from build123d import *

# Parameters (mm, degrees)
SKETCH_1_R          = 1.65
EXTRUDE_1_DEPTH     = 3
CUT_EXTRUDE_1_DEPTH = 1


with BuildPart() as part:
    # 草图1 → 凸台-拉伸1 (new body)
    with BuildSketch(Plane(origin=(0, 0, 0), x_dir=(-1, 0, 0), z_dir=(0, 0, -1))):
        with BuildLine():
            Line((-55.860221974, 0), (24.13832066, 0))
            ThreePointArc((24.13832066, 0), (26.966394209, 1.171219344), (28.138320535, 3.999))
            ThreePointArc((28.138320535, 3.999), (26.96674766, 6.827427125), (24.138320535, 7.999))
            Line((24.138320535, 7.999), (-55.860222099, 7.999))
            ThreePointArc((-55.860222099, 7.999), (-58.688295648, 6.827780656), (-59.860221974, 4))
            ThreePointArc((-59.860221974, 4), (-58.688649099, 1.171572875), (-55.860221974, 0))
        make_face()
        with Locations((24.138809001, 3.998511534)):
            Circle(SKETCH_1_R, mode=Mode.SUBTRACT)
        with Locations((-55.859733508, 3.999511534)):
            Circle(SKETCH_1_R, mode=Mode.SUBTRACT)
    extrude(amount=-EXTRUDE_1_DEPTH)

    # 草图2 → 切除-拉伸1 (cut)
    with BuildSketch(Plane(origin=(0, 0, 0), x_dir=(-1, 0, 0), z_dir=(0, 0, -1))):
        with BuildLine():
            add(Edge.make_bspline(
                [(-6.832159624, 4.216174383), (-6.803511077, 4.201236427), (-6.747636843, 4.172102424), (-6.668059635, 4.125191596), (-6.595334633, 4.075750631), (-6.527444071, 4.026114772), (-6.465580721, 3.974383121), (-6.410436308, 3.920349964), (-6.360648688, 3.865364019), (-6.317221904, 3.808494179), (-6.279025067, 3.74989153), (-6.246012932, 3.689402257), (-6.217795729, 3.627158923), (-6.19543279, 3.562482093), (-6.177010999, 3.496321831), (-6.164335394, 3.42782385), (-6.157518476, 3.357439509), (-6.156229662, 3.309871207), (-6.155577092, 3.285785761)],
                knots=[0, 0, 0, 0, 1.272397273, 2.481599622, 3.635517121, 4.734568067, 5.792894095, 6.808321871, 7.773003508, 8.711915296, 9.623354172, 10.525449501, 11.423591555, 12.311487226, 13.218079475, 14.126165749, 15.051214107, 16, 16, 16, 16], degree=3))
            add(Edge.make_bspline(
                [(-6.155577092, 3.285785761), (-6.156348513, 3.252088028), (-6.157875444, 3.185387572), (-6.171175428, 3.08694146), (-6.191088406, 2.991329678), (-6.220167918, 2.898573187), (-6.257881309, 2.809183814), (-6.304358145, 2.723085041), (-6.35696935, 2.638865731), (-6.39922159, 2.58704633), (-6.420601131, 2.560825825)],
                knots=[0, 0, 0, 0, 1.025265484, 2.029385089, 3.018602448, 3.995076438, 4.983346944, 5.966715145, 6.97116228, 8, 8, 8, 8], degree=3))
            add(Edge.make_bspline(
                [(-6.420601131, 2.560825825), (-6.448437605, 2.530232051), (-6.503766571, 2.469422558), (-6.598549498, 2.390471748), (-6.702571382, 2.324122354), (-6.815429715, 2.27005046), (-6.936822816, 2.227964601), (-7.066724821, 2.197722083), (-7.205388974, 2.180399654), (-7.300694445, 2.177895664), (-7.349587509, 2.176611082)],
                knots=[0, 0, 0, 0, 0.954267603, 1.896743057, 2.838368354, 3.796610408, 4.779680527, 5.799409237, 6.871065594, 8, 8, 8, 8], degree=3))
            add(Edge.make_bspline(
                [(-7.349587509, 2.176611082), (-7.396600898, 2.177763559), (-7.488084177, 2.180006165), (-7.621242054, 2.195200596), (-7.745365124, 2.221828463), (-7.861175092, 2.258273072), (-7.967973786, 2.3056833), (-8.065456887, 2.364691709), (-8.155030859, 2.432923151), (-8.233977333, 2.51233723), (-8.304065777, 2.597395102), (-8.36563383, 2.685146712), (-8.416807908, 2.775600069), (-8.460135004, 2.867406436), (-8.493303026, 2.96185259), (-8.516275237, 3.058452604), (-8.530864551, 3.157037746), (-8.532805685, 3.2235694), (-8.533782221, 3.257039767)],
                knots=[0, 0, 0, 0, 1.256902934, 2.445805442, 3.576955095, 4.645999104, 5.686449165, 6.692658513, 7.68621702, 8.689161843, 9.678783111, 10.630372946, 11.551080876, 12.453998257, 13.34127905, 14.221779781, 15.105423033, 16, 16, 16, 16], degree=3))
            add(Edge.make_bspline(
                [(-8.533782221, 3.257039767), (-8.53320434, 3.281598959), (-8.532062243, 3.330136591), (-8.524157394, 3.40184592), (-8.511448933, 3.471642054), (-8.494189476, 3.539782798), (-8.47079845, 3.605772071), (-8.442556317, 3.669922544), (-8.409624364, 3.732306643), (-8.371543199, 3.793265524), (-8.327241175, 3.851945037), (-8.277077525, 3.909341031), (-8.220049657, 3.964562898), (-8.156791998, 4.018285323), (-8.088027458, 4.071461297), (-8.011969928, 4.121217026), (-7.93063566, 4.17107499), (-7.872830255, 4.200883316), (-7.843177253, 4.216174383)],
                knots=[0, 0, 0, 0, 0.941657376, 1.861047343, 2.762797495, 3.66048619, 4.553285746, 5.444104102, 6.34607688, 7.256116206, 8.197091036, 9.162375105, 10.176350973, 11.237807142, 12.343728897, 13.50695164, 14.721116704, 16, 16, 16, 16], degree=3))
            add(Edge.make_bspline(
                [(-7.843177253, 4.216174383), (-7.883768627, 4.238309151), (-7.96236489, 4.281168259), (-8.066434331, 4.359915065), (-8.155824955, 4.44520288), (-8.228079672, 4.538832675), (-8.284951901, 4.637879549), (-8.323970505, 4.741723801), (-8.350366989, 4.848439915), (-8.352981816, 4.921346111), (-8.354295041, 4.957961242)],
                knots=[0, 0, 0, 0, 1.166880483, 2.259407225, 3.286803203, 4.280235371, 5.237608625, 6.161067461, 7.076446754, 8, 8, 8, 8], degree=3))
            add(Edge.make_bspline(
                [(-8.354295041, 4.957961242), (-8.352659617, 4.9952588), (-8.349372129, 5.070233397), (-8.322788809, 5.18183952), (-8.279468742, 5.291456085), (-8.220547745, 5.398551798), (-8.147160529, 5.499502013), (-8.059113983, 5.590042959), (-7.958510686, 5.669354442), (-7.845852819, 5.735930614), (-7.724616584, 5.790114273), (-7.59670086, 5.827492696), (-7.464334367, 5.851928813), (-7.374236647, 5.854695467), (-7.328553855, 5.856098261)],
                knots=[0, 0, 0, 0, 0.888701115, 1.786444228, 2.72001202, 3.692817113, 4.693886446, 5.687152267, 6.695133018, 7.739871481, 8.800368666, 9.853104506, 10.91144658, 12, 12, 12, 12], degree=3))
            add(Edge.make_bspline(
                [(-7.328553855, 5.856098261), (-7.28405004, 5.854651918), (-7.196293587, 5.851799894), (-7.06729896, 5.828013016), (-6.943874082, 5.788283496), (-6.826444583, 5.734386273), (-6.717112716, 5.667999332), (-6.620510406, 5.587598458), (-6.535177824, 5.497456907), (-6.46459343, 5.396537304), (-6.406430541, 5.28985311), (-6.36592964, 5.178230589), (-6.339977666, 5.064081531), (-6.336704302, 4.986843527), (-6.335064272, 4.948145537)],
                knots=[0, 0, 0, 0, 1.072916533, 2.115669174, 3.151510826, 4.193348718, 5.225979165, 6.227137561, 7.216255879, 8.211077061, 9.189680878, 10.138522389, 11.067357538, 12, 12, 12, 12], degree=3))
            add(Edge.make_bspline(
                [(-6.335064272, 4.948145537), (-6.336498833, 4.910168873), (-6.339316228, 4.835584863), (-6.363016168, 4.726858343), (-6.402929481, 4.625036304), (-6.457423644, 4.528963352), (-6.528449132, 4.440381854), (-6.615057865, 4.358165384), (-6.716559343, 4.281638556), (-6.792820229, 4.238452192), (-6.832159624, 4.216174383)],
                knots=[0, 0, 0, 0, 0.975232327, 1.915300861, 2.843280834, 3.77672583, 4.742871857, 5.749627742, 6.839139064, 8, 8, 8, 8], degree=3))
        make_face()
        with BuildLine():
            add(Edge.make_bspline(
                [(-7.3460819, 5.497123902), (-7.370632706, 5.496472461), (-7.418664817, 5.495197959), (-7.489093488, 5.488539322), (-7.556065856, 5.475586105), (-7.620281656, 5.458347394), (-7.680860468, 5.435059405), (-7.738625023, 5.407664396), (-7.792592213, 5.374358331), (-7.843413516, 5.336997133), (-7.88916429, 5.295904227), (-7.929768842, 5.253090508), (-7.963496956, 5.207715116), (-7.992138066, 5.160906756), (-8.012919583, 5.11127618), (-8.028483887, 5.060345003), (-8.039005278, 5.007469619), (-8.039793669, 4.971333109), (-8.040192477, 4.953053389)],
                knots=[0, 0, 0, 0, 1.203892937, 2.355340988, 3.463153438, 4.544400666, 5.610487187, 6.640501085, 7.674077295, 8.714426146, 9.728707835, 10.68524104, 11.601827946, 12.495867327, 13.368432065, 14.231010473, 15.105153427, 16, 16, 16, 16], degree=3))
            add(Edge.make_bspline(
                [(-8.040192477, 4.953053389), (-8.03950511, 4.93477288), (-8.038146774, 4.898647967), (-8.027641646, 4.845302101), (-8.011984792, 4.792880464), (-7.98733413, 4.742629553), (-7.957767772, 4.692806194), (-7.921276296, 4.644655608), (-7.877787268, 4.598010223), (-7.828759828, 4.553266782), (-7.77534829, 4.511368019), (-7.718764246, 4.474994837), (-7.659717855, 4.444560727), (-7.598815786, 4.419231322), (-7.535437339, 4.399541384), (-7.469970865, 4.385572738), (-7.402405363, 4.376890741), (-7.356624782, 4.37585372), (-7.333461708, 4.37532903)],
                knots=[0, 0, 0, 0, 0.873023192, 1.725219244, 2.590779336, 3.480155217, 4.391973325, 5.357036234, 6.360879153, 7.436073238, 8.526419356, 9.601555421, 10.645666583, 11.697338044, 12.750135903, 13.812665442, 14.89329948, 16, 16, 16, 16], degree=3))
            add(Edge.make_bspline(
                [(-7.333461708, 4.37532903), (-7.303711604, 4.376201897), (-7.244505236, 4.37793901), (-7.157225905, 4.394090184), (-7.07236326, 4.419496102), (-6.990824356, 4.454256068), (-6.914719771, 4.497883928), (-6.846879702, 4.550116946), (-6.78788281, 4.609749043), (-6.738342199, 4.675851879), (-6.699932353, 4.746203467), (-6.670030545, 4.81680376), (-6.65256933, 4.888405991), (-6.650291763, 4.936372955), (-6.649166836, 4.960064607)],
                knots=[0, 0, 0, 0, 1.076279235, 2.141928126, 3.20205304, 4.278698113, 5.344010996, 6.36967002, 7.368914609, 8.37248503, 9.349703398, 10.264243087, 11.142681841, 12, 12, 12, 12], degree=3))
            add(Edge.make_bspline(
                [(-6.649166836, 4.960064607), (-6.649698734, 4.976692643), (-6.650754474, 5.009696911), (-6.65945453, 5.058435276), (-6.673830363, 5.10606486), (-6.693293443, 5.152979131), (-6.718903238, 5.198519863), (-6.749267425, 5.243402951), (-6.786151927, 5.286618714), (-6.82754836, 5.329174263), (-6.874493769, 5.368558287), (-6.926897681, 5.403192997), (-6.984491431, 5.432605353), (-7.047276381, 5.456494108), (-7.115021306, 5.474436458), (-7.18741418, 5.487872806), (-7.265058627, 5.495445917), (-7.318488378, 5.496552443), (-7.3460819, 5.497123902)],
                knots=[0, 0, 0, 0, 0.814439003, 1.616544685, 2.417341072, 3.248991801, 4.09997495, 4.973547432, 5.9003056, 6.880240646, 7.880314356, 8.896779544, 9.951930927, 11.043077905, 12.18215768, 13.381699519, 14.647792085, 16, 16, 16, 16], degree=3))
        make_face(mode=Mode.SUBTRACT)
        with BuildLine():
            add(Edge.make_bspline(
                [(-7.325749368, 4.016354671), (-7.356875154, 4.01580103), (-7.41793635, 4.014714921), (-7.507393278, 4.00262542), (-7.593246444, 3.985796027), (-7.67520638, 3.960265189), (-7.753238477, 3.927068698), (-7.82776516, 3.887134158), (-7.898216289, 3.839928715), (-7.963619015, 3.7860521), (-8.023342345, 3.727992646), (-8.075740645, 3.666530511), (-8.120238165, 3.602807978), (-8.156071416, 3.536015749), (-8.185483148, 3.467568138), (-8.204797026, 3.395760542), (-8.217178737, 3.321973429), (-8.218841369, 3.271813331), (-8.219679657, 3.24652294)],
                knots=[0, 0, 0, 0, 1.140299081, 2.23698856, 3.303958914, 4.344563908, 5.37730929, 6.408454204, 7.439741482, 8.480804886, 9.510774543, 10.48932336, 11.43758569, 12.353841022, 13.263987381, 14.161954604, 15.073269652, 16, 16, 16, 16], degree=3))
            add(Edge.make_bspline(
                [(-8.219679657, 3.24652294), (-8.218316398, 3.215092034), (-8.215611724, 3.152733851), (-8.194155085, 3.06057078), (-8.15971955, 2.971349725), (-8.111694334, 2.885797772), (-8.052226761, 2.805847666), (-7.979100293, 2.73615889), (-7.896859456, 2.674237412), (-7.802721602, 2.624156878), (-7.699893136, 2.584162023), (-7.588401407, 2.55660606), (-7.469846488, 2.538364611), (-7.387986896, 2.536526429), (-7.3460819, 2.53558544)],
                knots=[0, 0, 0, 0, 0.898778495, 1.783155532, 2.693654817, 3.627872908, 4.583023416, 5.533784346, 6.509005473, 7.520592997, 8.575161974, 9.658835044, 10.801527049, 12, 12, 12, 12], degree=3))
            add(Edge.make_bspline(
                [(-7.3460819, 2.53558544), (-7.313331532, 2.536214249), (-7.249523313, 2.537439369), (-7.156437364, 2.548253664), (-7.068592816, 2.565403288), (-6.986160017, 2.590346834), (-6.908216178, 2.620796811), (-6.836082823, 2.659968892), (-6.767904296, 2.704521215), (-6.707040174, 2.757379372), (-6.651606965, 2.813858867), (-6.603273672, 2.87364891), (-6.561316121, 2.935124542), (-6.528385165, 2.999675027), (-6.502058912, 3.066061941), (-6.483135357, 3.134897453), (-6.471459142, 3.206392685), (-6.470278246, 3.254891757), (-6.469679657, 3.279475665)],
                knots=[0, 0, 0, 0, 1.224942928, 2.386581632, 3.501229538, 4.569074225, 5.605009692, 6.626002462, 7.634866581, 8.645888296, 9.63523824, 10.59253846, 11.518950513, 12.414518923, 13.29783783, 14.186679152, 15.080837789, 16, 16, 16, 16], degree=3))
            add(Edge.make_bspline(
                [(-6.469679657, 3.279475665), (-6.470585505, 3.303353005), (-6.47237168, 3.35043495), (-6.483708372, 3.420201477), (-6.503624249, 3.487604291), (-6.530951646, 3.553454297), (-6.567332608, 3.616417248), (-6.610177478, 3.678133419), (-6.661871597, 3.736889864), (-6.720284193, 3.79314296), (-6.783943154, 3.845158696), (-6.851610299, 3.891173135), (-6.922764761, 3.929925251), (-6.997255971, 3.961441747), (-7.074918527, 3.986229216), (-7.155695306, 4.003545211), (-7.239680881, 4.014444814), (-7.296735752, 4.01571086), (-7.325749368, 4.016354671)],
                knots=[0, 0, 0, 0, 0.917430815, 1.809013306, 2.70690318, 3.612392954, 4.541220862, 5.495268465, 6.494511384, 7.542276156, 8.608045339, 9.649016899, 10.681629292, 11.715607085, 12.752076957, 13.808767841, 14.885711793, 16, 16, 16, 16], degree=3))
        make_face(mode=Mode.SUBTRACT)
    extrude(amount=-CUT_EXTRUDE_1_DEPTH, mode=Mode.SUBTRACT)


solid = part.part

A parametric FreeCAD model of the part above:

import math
import FreeCAD as App
import Part
import Sketcher
from FreeCAD import Vector

doc = App.newDocument("Part")
body = doc.addObject("PartDesign::Body", "Body")

sketch1 = doc.addObject("Sketcher::SketchObject", "Sketch")
body.addObject(sketch1)
sketch1.AttachmentSupport = (doc.XY_Plane, [""])
sketch1.MapMode = "FlatFace"
sketch1.addGeometry([
    Part.LineSegment(Vector(55.860222, 0, 0), Vector(-24.138321, 0, 0)),
    Part.ArcOfCircle(Part.Circle(Vector(-24.138321, 4, 0), Vector(0, 0, 1), 4), math.radians(-179.985676), math.radians(-90)),
    Part.ArcOfCircle(Part.Circle(Vector(-24.138321, 3.999, 0), Vector(0, 0, 1), 4), math.radians(90), math.radians(180)),
    Part.LineSegment(Vector(-24.138321, 7.999, 0), Vector(55.860222, 7.999, 0)),
    Part.ArcOfCircle(Part.Circle(Vector(55.860222, 3.999, 0), Vector(0, 0, 1), 4), math.radians(0.014324), math.radians(90)),
    Part.ArcOfCircle(Part.Circle(Vector(55.860222, 4, 0), Vector(0, 0, 1), 4), math.radians(-90), math.radians(0)),
    Part.Circle(Vector(-24.138809, 3.998512, 0), Vector(0, 0, 1), 1.65),
    Part.Circle(Vector(55.859734, 3.999512, 0), Vector(0, 0, 1), 1.65),
], False)
sketch1.addConstraint([
    Sketcher.Constraint("Tangent", 0, 2, 1, 2),
    Sketcher.Constraint("Coincident", 1, 1, 2, 2),
    Sketcher.Constraint("Tangent", 2, 1, 3, 1),
    Sketcher.Constraint("Tangent", 3, 2, 4, 2),
    Sketcher.Constraint("Coincident", 4, 1, 5, 2),
    Sketcher.Constraint("Tangent", 5, 1, 0, 1),
    Sketcher.Constraint("Horizontal", 0),
    Sketcher.Constraint("Horizontal", 3),
    Sketcher.Constraint("Equal", 1, 2),
    Sketcher.Constraint("Equal", 2, 4),
    Sketcher.Constraint("Equal", 4, 5),
    Sketcher.Constraint("Equal", 6, 7),
    Sketcher.Constraint("PointOnObject", 0, 2, -1),
    Sketcher.Constraint("Horizontal", 4, 3, 1, 1),
    Sketcher.Constraint("Horizontal", 5, 3, 4, 1),
    Sketcher.Constraint("Radius", 1, 4.0),
    Sketcher.Constraint("Diameter", 6, 3.3),
    Sketcher.Constraint("DistanceY", -1, 1, 2, 3, 3.999),
    Sketcher.Constraint("DistanceY", 6, 3, 7, 3, 0.001),
    Sketcher.Constraint("DistanceX", 0, 2, 0, 1, 79.998543),
    Sketcher.Constraint("DistanceX", 1, 3, -1, 1, 24.138321),
    Sketcher.Constraint("DistanceX", 6, 3, -1, 1, 24.138809),
    Sketcher.Constraint("DistanceY", -1, 1, 6, 3, 3.998512),
    Sketcher.Constraint("DistanceX", 7, 3, 5, 3, 0.000488),
])
pad1 = doc.addObject("PartDesign::Pad", "Pad")
body.addObject(pad1)
pad1.Profile = sketch1
pad1.Length = 3

sketch2 = doc.addObject("Sketcher::SketchObject", "Sketch001")
body.addObject(sketch2)
sketch2.AttachmentSupport = (doc.XY_Plane, [""])
sketch2.MapMode = "FlatFace"
sketch2.addGeometry([
    Part.BSplineCurve([Vector(6.83216, 4.216174, 0), Vector(6.803511, 4.201236, 0), Vector(6.747637, 4.172102, 0), Vector(6.66806, 4.125192, 0), Vector(6.595335, 4.075751, 0), Vector(6.527444, 4.026115, 0), Vector(6.465581, 3.974383, 0), Vector(6.410436, 3.92035, 0), Vector(6.360649, 3.865364, 0), Vector(6.317222, 3.808494, 0), Vector(6.279025, 3.749892, 0), Vector(6.246013, 3.689402, 0), Vector(6.217796, 3.627159, 0), Vector(6.195433, 3.562482, 0), Vector(6.177011, 3.496322, 0), Vector(6.164335, 3.427824, 0), Vector(6.157518, 3.35744, 0), Vector(6.15623, 3.309871, 0), Vector(6.155577, 3.285786, 0)], [4, 1, 1, 1, 1, 1, 1, 1, 1, 1, 1, 1, 1, 1, 1, 1, 4], [0, 1.272397273, 2.481599622, 3.635517121, 4.734568067, 5.792894095, 6.808321871, 7.773003508, 8.711915296, 9.623354172, 10.525449501, 11.423591555, 12.311487226, 13.218079475, 14.126165749, 15.051214107, 16], False, 3, [1, 1, 1, 1, 1, 1, 1, 1, 1, 1, 1, 1, 1, 1, 1, 1, 1, 1, 1], False),
    Part.BSplineCurve([Vector(6.335064, 4.948146, 0), Vector(6.336499, 4.910169, 0), Vector(6.339316, 4.835585, 0), Vector(6.363016, 4.726858, 0), Vector(6.402929, 4.625036, 0), Vector(6.457424, 4.528963, 0), Vector(6.528449, 4.440382, 0), Vector(6.615058, 4.358165, 0), Vector(6.716559, 4.281639, 0), Vector(6.79282, 4.238452, 0), Vector(6.83216, 4.216174, 0)], [4, 1, 1, 1, 1, 1, 1, 1, 4], [0, 0.975232327, 1.915300861, 2.843280834, 3.77672583, 4.742871857, 5.749627742, 6.839139064, 8], False, 3, [1, 1, 1, 1, 1, 1, 1, 1, 1, 1, 1], False),
    Part.BSplineCurve([Vector(7.328554, 5.856098, 0), Vector(7.28405, 5.854652, 0), Vector(7.196294, 5.8518, 0), Vector(7.067299, 5.828013, 0), Vector(6.943874, 5.788283, 0), Vector(6.826445, 5.734386, 0), Vector(6.717113, 5.667999, 0), Vector(6.62051, 5.587598, 0), Vector(6.535178, 5.497457, 0), Vector(6.464593, 5.396537, 0), Vector(6.406431, 5.289853, 0), Vector(6.36593, 5.178231, 0), Vector(6.339978, 5.064082, 0), Vector(6.336704, 4.986844, 0), Vector(6.335064, 4.948146, 0)], [4, 1, 1, 1, 1, 1, 1, 1, 1, 1, 1, 1, 4], [0, 1.072916533, 2.115669174, 3.151510826, 4.193348718, 5.225979165, 6.227137561, 7.216255879, 8.211077061, 9.189680878, 10.138522389, 11.067357538, 12], False, 3, [1, 1, 1, 1, 1, 1, 1, 1, 1, 1, 1, 1, 1, 1, 1], False),
    Part.BSplineCurve([Vector(8.354295, 4.957961, 0), Vector(8.35266, 4.995259, 0), Vector(8.349372, 5.070233, 0), Vector(8.322789, 5.18184, 0), Vector(8.279469, 5.291456, 0), Vector(8.220548, 5.398552, 0), Vector(8.147161, 5.499502, 0), Vector(8.059114, 5.590043, 0), Vector(7.958511, 5.669354, 0), Vector(7.845853, 5.735931, 0), Vector(7.724617, 5.790114, 0), Vector(7.596701, 5.827493, 0), Vector(7.464334, 5.851929, 0), Vector(7.374237, 5.854695, 0), Vector(7.328554, 5.856098, 0)], [4, 1, 1, 1, 1, 1, 1, 1, 1, 1, 1, 1, 4], [0, 0.888701115, 1.786444228, 2.72001202, 3.692817113, 4.693886446, 5.687152267, 6.695133018, 7.739871481, 8.800368666, 9.853104506, 10.91144658, 12], False, 3, [1, 1, 1, 1, 1, 1, 1, 1, 1, 1, 1, 1, 1, 1, 1], False),
    Part.BSplineCurve([Vector(7.843177, 4.216174, 0), Vector(7.883769, 4.238309, 0), Vector(7.962365, 4.281168, 0), Vector(8.066434, 4.359915, 0), Vector(8.155825, 4.445203, 0), Vector(8.22808, 4.538833, 0), Vector(8.284952, 4.63788, 0), Vector(8.323971, 4.741724, 0), Vector(8.350367, 4.84844, 0), Vector(8.352982, 4.921346, 0), Vector(8.354295, 4.957961, 0)], [4, 1, 1, 1, 1, 1, 1, 1, 4], [0, 1.166880483, 2.259407225, 3.286803203, 4.280235371, 5.237608625, 6.161067461, 7.076446754, 8], False, 3, [1, 1, 1, 1, 1, 1, 1, 1, 1, 1, 1], False),
    Part.BSplineCurve([Vector(8.533782, 3.25704, 0), Vector(8.533204, 3.281599, 0), Vector(8.532062, 3.330137, 0), Vector(8.524157, 3.401846, 0), Vector(8.511449, 3.471642, 0), Vector(8.494189, 3.539783, 0), Vector(8.470798, 3.605772, 0), Vector(8.442556, 3.669923, 0), Vector(8.409624, 3.732307, 0), Vector(8.371543, 3.793266, 0), Vector(8.327241, 3.851945, 0), Vector(8.277078, 3.909341, 0), Vector(8.22005, 3.964563, 0), Vector(8.156792, 4.018285, 0), Vector(8.088027, 4.071461, 0), Vector(8.01197, 4.121217, 0), Vector(7.930636, 4.171075, 0), Vector(7.87283, 4.200883, 0), Vector(7.843177, 4.216174, 0)], [4, 1, 1, 1, 1, 1, 1, 1, 1, 1, 1, 1, 1, 1, 1, 1, 4], [0, 0.941657376, 1.861047343, 2.762797495, 3.66048619, 4.553285746, 5.444104102, 6.34607688, 7.256116206, 8.197091036, 9.162375105, 10.176350973, 11.237807142, 12.343728897, 13.50695164, 14.721116704, 16], False, 3, [1, 1, 1, 1, 1, 1, 1, 1, 1, 1, 1, 1, 1, 1, 1, 1, 1, 1, 1], False),
    Part.BSplineCurve([Vector(7.349588, 2.176611, 0), Vector(7.396601, 2.177764, 0), Vector(7.488084, 2.180006, 0), Vector(7.621242, 2.195201, 0), Vector(7.745365, 2.221828, 0), Vector(7.861175, 2.258273, 0), Vector(7.967974, 2.305683, 0), Vector(8.065457, 2.364692, 0), Vector(8.155031, 2.432923, 0), Vector(8.233977, 2.512337, 0), Vector(8.304066, 2.597395, 0), Vector(8.365634, 2.685147, 0), Vector(8.416808, 2.7756, 0), Vector(8.460135, 2.867406, 0), Vector(8.493303, 2.961853, 0), Vector(8.516275, 3.058453, 0), Vector(8.530865, 3.157038, 0), Vector(8.532806, 3.223569, 0), Vector(8.533782, 3.25704, 0)], [4, 1, 1, 1, 1, 1, 1, 1, 1, 1, 1, 1, 1, 1, 1, 1, 4], [0, 1.256902934, 2.445805442, 3.576955095, 4.645999104, 5.686449165, 6.692658513, 7.68621702, 8.689161843, 9.678783111, 10.630372946, 11.551080876, 12.453998257, 13.34127905, 14.221779781, 15.105423033, 16], False, 3, [1, 1, 1, 1, 1, 1, 1, 1, 1, 1, 1, 1, 1, 1, 1, 1, 1, 1, 1], False),
    Part.BSplineCurve([Vector(6.420601, 2.560826, 0), Vector(6.448438, 2.530232, 0), Vector(6.503767, 2.469423, 0), Vector(6.598549, 2.390472, 0), Vector(6.702571, 2.324122, 0), Vector(6.81543, 2.27005, 0), Vector(6.936823, 2.227965, 0), Vector(7.066725, 2.197722, 0), Vector(7.205389, 2.1804, 0), Vector(7.300694, 2.177896, 0), Vector(7.349588, 2.176611, 0)], [4, 1, 1, 1, 1, 1, 1, 1, 4], [0, 0.954267603, 1.896743057, 2.838368354, 3.796610408, 4.779680527, 5.799409237, 6.871065594, 8], False, 3, [1, 1, 1, 1, 1, 1, 1, 1, 1, 1, 1], False),
    Part.BSplineCurve([Vector(6.155577, 3.285786, 0), Vector(6.156349, 3.252088, 0), Vector(6.157875, 3.185388, 0), Vector(6.171175, 3.086941, 0), Vector(6.191088, 2.99133, 0), Vector(6.220168, 2.898573, 0), Vector(6.257881, 2.809184, 0), Vector(6.304358, 2.723085, 0), Vector(6.356969, 2.638866, 0), Vector(6.399222, 2.587046, 0), Vector(6.420601, 2.560826, 0)], [4, 1, 1, 1, 1, 1, 1, 1, 4], [0, 1.025265484, 2.029385089, 3.018602448, 3.995076438, 4.983346944, 5.966715145, 6.97116228, 8], False, 3, [1, 1, 1, 1, 1, 1, 1, 1, 1, 1, 1], False),
    Part.BSplineCurve([Vector(6.46968, 3.279476, 0), Vector(6.470586, 3.303353, 0), Vector(6.472372, 3.350435, 0), Vector(6.483708, 3.420201, 0), Vector(6.503624, 3.487604, 0), Vector(6.530952, 3.553454, 0), Vector(6.567333, 3.616417, 0), Vector(6.610177, 3.678133, 0), Vector(6.661872, 3.73689, 0), Vector(6.720284, 3.793143, 0), Vector(6.783943, 3.845159, 0), Vector(6.85161, 3.891173, 0), Vector(6.922765, 3.929925, 0), Vector(6.997256, 3.961442, 0), Vector(7.074919, 3.986229, 0), Vector(7.155695, 4.003545, 0), Vector(7.239681, 4.014445, 0), Vector(7.296736, 4.015711, 0), Vector(7.325749, 4.016355, 0)], [4, 1, 1, 1, 1, 1, 1, 1, 1, 1, 1, 1, 1, 1, 1, 1, 4], [0, 0.917430815, 1.809013306, 2.70690318, 3.612392954, 4.541220862, 5.495268465, 6.494511384, 7.542276156, 8.608045339, 9.649016899, 10.681629292, 11.715607085, 12.752076957, 13.808767841, 14.885711793, 16], False, 3, [1, 1, 1, 1, 1, 1, 1, 1, 1, 1, 1, 1, 1, 1, 1, 1, 1, 1, 1], False),
    Part.BSplineCurve([Vector(7.346082, 2.535585, 0), Vector(7.313332, 2.536214, 0), Vector(7.249523, 2.537439, 0), Vector(7.156437, 2.548254, 0), Vector(7.068593, 2.565403, 0), Vector(6.98616, 2.590347, 0), Vector(6.908216, 2.620797, 0), Vector(6.836083, 2.659969, 0), Vector(6.767904, 2.704521, 0), Vector(6.70704, 2.757379, 0), Vector(6.651607, 2.813859, 0), Vector(6.603274, 2.873649, 0), Vector(6.561316, 2.935125, 0), Vector(6.528385, 2.999675, 0), Vector(6.502059, 3.066062, 0), Vector(6.483135, 3.134897, 0), Vector(6.471459, 3.206393, 0), Vector(6.470278, 3.254892, 0), Vector(6.46968, 3.279476, 0)], [4, 1, 1, 1, 1, 1, 1, 1, 1, 1, 1, 1, 1, 1, 1, 1, 4], [0, 1.224942928, 2.386581632, 3.501229538, 4.569074225, 5.605009692, 6.626002462, 7.634866581, 8.645888296, 9.63523824, 10.59253846, 11.518950513, 12.414518923, 13.29783783, 14.186679152, 15.080837789, 16], False, 3, [1, 1, 1, 1, 1, 1, 1, 1, 1, 1, 1, 1, 1, 1, 1, 1, 1, 1, 1], False),
    Part.BSplineCurve([Vector(8.21968, 3.246523, 0), Vector(8.218316, 3.215092, 0), Vector(8.215612, 3.152734, 0), Vector(8.194155, 3.060571, 0), Vector(8.15972, 2.97135, 0), Vector(8.111694, 2.885798, 0), Vector(8.052227, 2.805848, 0), Vector(7.9791, 2.736159, 0), Vector(7.896859, 2.674237, 0), Vector(7.802722, 2.624157, 0), Vector(7.699893, 2.584162, 0), Vector(7.588401, 2.556606, 0), Vector(7.469846, 2.538365, 0), Vector(7.387987, 2.536526, 0), Vector(7.346082, 2.535585, 0)], [4, 1, 1, 1, 1, 1, 1, 1, 1, 1, 1, 1, 4], [0, 0.898778495, 1.783155532, 2.693654817, 3.627872908, 4.583023416, 5.533784346, 6.509005473, 7.520592997, 8.575161974, 9.658835044, 10.801527049, 12], False, 3, [1, 1, 1, 1, 1, 1, 1, 1, 1, 1, 1, 1, 1, 1, 1], False),
    Part.BSplineCurve([Vector(7.325749, 4.016355, 0), Vector(7.356875, 4.015801, 0), Vector(7.417936, 4.014715, 0), Vector(7.507393, 4.002625, 0), Vector(7.593246, 3.985796, 0), Vector(7.675206, 3.960265, 0), Vector(7.753238, 3.927069, 0), Vector(7.827765, 3.887134, 0), Vector(7.898216, 3.839929, 0), Vector(7.963619, 3.786052, 0), Vector(8.023342, 3.727993, 0), Vector(8.075741, 3.666531, 0), Vector(8.120238, 3.602808, 0), Vector(8.156071, 3.536016, 0), Vector(8.185483, 3.467568, 0), Vector(8.204797, 3.395761, 0), Vector(8.217179, 3.321973, 0), Vector(8.218841, 3.271813, 0), Vector(8.21968, 3.246523, 0)], [4, 1, 1, 1, 1, 1, 1, 1, 1, 1, 1, 1, 1, 1, 1, 1, 4], [0, 1.140299081, 2.23698856, 3.303958914, 4.344563908, 5.37730929, 6.408454204, 7.439741482, 8.480804886, 9.510774543, 10.48932336, 11.43758569, 12.353841022, 13.263987381, 14.161954604, 15.073269652, 16], False, 3, [1, 1, 1, 1, 1, 1, 1, 1, 1, 1, 1, 1, 1, 1, 1, 1, 1, 1, 1], False),
    Part.BSplineCurve([Vector(6.649167, 4.960065, 0), Vector(6.649699, 4.976693, 0), Vector(6.650754, 5.009697, 0), Vector(6.659455, 5.058435, 0), Vector(6.67383, 5.106065, 0), Vector(6.693293, 5.152979, 0), Vector(6.718903, 5.19852, 0), Vector(6.749267, 5.243403, 0), Vector(6.786152, 5.286619, 0), Vector(6.827548, 5.329174, 0), Vector(6.874494, 5.368558, 0), Vector(6.926898, 5.403193, 0), Vector(6.984491, 5.432605, 0), Vector(7.047276, 5.456494, 0), Vector(7.115021, 5.474436, 0), Vector(7.187414, 5.487873, 0), Vector(7.265059, 5.495446, 0), Vector(7.318488, 5.496552, 0), Vector(7.346082, 5.497124, 0)], [4, 1, 1, 1, 1, 1, 1, 1, 1, 1, 1, 1, 1, 1, 1, 1, 4], [0, 0.814439003, 1.616544685, 2.417341072, 3.248991801, 4.09997495, 4.973547432, 5.9003056, 6.880240646, 7.880314356, 8.896779544, 9.951930927, 11.043077905, 12.18215768, 13.381699519, 14.647792085, 16], False, 3, [1, 1, 1, 1, 1, 1, 1, 1, 1, 1, 1, 1, 1, 1, 1, 1, 1, 1, 1], False),
    Part.BSplineCurve([Vector(7.333462, 4.375329, 0), Vector(7.303712, 4.376202, 0), Vector(7.244505, 4.377939, 0), Vector(7.157226, 4.39409, 0), Vector(7.072363, 4.419496, 0), Vector(6.990824, 4.454256, 0), Vector(6.91472, 4.497884, 0), Vector(6.84688, 4.550117, 0), Vector(6.787883, 4.609749, 0), Vector(6.738342, 4.675852, 0), Vector(6.699932, 4.746203, 0), Vector(6.670031, 4.816804, 0), Vector(6.652569, 4.888406, 0), Vector(6.650292, 4.936373, 0), Vector(6.649167, 4.960065, 0)], [4, 1, 1, 1, 1, 1, 1, 1, 1, 1, 1, 1, 4], [0, 1.076279235, 2.141928126, 3.20205304, 4.278698113, 5.344010996, 6.36967002, 7.368914609, 8.37248503, 9.349703398, 10.264243087, 11.142681841, 12], False, 3, [1, 1, 1, 1, 1, 1, 1, 1, 1, 1, 1, 1, 1, 1, 1], False),
    Part.BSplineCurve([Vector(8.040192, 4.953053, 0), Vector(8.039505, 4.934773, 0), Vector(8.038147, 4.898648, 0), Vector(8.027642, 4.845302, 0), Vector(8.011985, 4.79288, 0), Vector(7.987334, 4.74263, 0), Vector(7.957768, 4.692806, 0), Vector(7.921276, 4.644656, 0), Vector(7.877787, 4.59801, 0), Vector(7.82876, 4.553267, 0), Vector(7.775348, 4.511368, 0), Vector(7.718764, 4.474995, 0), Vector(7.659718, 4.444561, 0), Vector(7.598816, 4.419231, 0), Vector(7.535437, 4.399541, 0), Vector(7.469971, 4.385573, 0), Vector(7.402405, 4.376891, 0), Vector(7.356625, 4.375854, 0), Vector(7.333462, 4.375329, 0)], [4, 1, 1, 1, 1, 1, 1, 1, 1, 1, 1, 1, 1, 1, 1, 1, 4], [0, 0.873023192, 1.725219244, 2.590779336, 3.480155217, 4.391973325, 5.357036234, 6.360879153, 7.436073238, 8.526419356, 9.601555421, 10.645666583, 11.697338044, 12.750135903, 13.812665442, 14.89329948, 16], False, 3, [1, 1, 1, 1, 1, 1, 1, 1, 1, 1, 1, 1, 1, 1, 1, 1, 1, 1, 1], False),
    Part.BSplineCurve([Vector(7.346082, 5.497124, 0), Vector(7.370633, 5.496472, 0), Vector(7.418665, 5.495198, 0), Vector(7.489093, 5.488539, 0), Vector(7.556066, 5.475586, 0), Vector(7.620282, 5.458347, 0), Vector(7.68086, 5.435059, 0), Vector(7.738625, 5.407664, 0), Vector(7.792592, 5.374358, 0), Vector(7.843414, 5.336997, 0), Vector(7.889164, 5.295904, 0), Vector(7.929769, 5.253091, 0), Vector(7.963497, 5.207715, 0), Vector(7.992138, 5.160907, 0), Vector(8.01292, 5.111276, 0), Vector(8.028484, 5.060345, 0), Vector(8.039005, 5.00747, 0), Vector(8.039794, 4.971333, 0), Vector(8.040192, 4.953053, 0)], [4, 1, 1, 1, 1, 1, 1, 1, 1, 1, 1, 1, 1, 1, 1, 1, 4], [0, 1.203892937, 2.355340988, 3.463153438, 4.544400666, 5.610487187, 6.640501085, 7.674077295, 8.714426146, 9.728707835, 10.68524104, 11.601827946, 12.495867327, 13.368432065, 14.231010473, 15.105153427, 16], False, 3, [1, 1, 1, 1, 1, 1, 1, 1, 1, 1, 1, 1, 1, 1, 1, 1, 1, 1, 1], False),
], False)
sketch2.addConstraint([
    Sketcher.Constraint("Block", 0),
    Sketcher.Constraint("Block", 1),
    Sketcher.Constraint("Block", 2),
    Sketcher.Constraint("Block", 3),
    Sketcher.Constraint("Block", 4),
    Sketcher.Constraint("Block", 5),
    Sketcher.Constraint("Block", 6),
    Sketcher.Constraint("Block", 7),
    Sketcher.Constraint("Block", 8),
    Sketcher.Constraint("Block", 9),
    Sketcher.Constraint("Block", 10),
    Sketcher.Constraint("Block", 11),
    Sketcher.Constraint("Block", 12),
    Sketcher.Constraint("Block", 13),
    Sketcher.Constraint("Block", 14),
    Sketcher.Constraint("Block", 15),
    Sketcher.Constraint("Block", 16),
])
pocket1 = doc.addObject("PartDesign::Pocket", "Pocket")
body.addObject(pocket1)
pocket1.Profile = sketch2
pocket1.Length = 1
pocket1.Reversed = True

doc.recompute()
